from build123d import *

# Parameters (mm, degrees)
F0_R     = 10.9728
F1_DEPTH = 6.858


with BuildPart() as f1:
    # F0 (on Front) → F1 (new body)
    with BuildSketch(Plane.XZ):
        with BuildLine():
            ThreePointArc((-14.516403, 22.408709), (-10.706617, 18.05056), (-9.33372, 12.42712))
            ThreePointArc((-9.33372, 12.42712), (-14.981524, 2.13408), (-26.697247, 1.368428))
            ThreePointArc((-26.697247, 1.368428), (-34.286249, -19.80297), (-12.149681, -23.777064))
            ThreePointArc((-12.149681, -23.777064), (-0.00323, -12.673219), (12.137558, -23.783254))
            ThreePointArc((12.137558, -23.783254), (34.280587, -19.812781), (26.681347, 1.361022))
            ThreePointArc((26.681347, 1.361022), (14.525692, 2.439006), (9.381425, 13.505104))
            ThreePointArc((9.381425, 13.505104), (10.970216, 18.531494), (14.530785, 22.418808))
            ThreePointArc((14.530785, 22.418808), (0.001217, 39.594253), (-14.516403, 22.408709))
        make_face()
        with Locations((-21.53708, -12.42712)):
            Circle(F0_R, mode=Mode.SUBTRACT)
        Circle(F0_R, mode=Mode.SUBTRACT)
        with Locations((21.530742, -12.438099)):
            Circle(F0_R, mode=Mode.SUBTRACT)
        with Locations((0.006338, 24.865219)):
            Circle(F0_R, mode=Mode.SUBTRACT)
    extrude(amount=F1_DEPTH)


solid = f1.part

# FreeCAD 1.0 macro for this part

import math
import FreeCAD as App
import Part
import Sketcher
Q = App.Units.Quantity

doc = App.newDocument("Part")
body = doc.addObject("PartDesign::Body", "Body")

sketch1 = doc.addObject("Sketcher::SketchObject", "Sketch")
body.addObject(sketch1)
sketch1.AttachmentSupport = (doc.XZ_Plane, [""])
sketch1.MapMode = "FlatFace"
sketch1.addGeometry(Part.ArcOfCircle(Part.Circle(App.Vector(-21.537082, 12.427121, 0), App.Vector(0, 0, 1), 12.203362), math.radians(-0.000003), math.radians(54.878869)), False)
sketch1.addGeometry(Part.ArcOfCircle(Part.Circle(App.Vector(-21.53708, 12.427121, 0), App.Vector(0, 0, 1), 12.20336), math.radians(-115.014526), math.radians(-0.000003)), False)
sketch1.addGeometry(Part.ArcOfCircle(Part.Circle(App.Vector(-21.53708, -12.42712, 0), App.Vector(0, 0, 1), 14.729035), math.radians(110.5081), math.radians(309.593732)), False)
sketch1.addGeometry(Part.ArcOfCircle(Part.Circle(App.Vector(-0.006338, -24.865218, 0), App.Vector(0, 0, 1), 12.192), math.radians(5.091343), math.radians(174.879452)), False)
sketch1.addGeometry(Part.ArcOfCircle(Part.Circle(App.Vector(21.530743, -12.438099, 0), App.Vector(0, 0, 1), 14.729035), math.radians(-129.622948), math.radians(69.531611)), False)
sketch1.addGeometry(Part.ArcOfCircle(Part.Circle(App.Vector(21.537081, 12.427121, 0), App.Vector(0, 0, 1), 12.203361), math.radians(174.932177), math.radians(294.932168)), False)
sketch1.addGeometry(Part.ArcOfCircle(Part.Circle(App.Vector(21.537081, 12.42712, 0), App.Vector(0, 0, 1), 12.203361), math.radians(125.038614), math.radians(174.93217)), False)
sketch1.addGeometry(Part.ArcOfCircle(Part.Circle(App.Vector(0.006339, 24.865219, 0), App.Vector(0, 0, 1), 14.729035), math.radians(-9.56082), math.radians(189.60066)), False)
sketch1.addGeometry(Part.Circle(App.Vector(-21.53708, -12.42712, 0), App.Vector(0, 0, 1), 10.9728), False)
sketch1.addGeometry(Part.Circle(App.Vector(21.530742, -12.438099, 0), App.Vector(0, 0, 1), 10.9728), False)
sketch1.addGeometry(Part.Circle(App.Vector(0, 0, 0), App.Vector(0, 0, 1), 10.9728), False)
sketch1.addGeometry(Part.Circle(App.Vector(0.006338, 24.865219, 0), App.Vector(0, 0, 1), 10.9728), False)
sketch1.addConstraint(Sketcher.Constraint("Coincident", 0, 1, 1, 2))
sketch1.addConstraint(Sketcher.Constraint("Coincident", 1, 1, 2, 1))
sketch1.addConstraint(Sketcher.Constraint("Coincident", 2, 2, 3, 2))
sketch1.addConstraint(Sketcher.Constraint("Coincident", 3, 1, 4, 1))
sketch1.addConstraint(Sketcher.Constraint("Coincident", 4, 2, 5, 2))
sketch1.addConstraint(Sketcher.Constraint("Coincident", 5, 1, 6, 2))
sketch1.addConstraint(Sketcher.Constraint("Coincident", 6, 1, 7, 1))
sketch1.addConstraint(Sketcher.Constraint("Coincident", 7, 2, 0, 2))
sketch1.addConstraint(Sketcher.Constraint("Coincident", 10, 3, -1, 1))
sketch1.addConstraint(Sketcher.Constraint("Coincident", 1, 3, 0, 3))
sketch1.addConstraint(Sketcher.Constraint("Coincident", 6, 3, 5, 3))
sketch1.addConstraint(Sketcher.Constraint("Coincident", 8, 3, 2, 3))
sketch1.addConstraint(Sketcher.Constraint("Coincident", 9, 3, 4, 3))
sketch1.addConstraint(Sketcher.Constraint("Coincident", 11, 3, 7, 3))
sketch1.addConstraint(Sketcher.Constraint("Radius", 3, Q("0.48 in")))
sketch1.addConstraint(Sketcher.Constraint("Diameter", 8, Q("0.864 in")))
sketch1.addConstraint(Sketcher.Constraint("Diameter", 9, Q("0.864 in")))
sketch1.addConstraint(Sketcher.Constraint("Diameter", 10, Q("0.864 in")))
sketch1.addConstraint(Sketcher.Constraint("Diameter", 11, Q("0.864 in")))
sketch1.addConstraint(Sketcher.Constraint("Radius", 0, Q("12.203362 mm")))
sketch1.addConstraint(Sketcher.Constraint("Radius", 5, Q("12.203361 mm")))
sketch1.addConstraint(Sketcher.Constraint("Radius", 2, Q("14.729035 mm")))
sketch1.addConstraint(Sketcher.Constraint("Radius", 4, Q("14.729035 mm")))
sketch1.addConstraint(Sketcher.Constraint("Radius", 7, Q("14.729035 mm")))
sketch1.addConstraint(Sketcher.Constraint("DistanceY", 4, 3, -1, 1, Q("12.438099 mm")))
sketch1.addConstraint(Sketcher.Constraint("DistanceY", 3, 3, 2, 3, Q("12.438098 mm")))
sketch1.addConstraint(Sketcher.Constraint("DistanceY", 6, 3, 7, 3, Q("12.438099 mm")))
sketch1.addConstraint(Sketcher.Constraint("DistanceY", 1, 3, 7, 3, Q("12.438098 mm")))
sketch1.addConstraint(Sketcher.Constraint("DistanceY", 0, 1, 11, 3, Q("12.438099 mm")))
sketch1.addConstraint(Sketcher.Constraint("DistanceX", 2, 3, 2, 2, Q("9.387399 mm")))
sketch1.addConstraint(Sketcher.Constraint("DistanceY", 4, 2, 5, 3, Q("11.066099 mm")))
sketch1.addConstraint(Sketcher.Constraint("DistanceX", 0, 3, -1, 1, Q("21.537082 mm")))
sketch1.addConstraint(Sketcher.Constraint("DistanceY", -1, 1, 0, 3, Q("12.427121 mm")))
sketch1.addConstraint(Sketcher.Constraint("DistanceX", 2, 3, -1, 1, Q("21.53708 mm")))
sketch1.addConstraint(Sketcher.Constraint("DistanceY", 2, 3, -1, 1, Q("12.42712 mm")))
sketch1.addConstraint(Sketcher.Constraint("DistanceX", -1, 1, 5, 3, Q("21.537081 mm")))
sketch1.addConstraint(Sketcher.Constraint("DistanceX", -1, 1, 7, 3, Q("0.006339 mm")))
sketch1.addConstraint(Sketcher.Constraint("DistanceX", 5, 1, 6, 1, Q("5.14936 mm")))
pad1 = doc.addObject("PartDesign::Pad", "Pad")
body.addObject(pad1)
pad1.Profile = sketch1
pad1.Length = Q("0.27 in")

doc.recompute()
